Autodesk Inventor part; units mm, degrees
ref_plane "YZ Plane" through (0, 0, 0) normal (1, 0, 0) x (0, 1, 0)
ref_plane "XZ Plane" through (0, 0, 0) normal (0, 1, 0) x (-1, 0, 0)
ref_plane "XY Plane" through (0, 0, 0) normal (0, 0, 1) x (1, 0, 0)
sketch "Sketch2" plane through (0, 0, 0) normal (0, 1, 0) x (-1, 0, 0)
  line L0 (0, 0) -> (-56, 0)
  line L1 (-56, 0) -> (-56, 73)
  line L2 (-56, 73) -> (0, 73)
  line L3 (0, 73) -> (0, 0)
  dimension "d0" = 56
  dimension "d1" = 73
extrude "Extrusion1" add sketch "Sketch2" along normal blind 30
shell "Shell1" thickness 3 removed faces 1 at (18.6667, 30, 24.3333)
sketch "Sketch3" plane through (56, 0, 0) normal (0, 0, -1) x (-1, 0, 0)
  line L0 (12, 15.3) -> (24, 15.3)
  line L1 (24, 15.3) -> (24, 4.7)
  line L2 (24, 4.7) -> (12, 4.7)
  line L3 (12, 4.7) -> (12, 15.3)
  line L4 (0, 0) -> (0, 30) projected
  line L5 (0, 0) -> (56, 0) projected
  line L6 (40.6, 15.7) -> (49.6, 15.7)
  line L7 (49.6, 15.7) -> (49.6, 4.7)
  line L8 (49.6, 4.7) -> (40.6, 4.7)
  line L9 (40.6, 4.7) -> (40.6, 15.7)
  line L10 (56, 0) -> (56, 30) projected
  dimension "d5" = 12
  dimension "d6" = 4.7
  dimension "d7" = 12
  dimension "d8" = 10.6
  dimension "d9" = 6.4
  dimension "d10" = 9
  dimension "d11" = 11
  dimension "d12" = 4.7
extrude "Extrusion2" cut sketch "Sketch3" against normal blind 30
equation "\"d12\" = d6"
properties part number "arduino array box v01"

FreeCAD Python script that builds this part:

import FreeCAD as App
import Part
import Sketcher
from FreeCAD import Vector


def faces_at(feature, points):
    """Names of the faces that lie closest to the given points."""
    faces = feature.Shape.Faces
    near = lambda p: min(range(len(faces)), key=lambda i: faces[i].distToShape(Part.Vertex(*p))[0])
    return sorted({f"Face{near(p) + 1}" for p in points})

doc = App.newDocument("Part")
body = doc.addObject("PartDesign::Body", "Body")

# Sketch on XZ plane
sketch1 = body.newObject("Sketcher::SketchObject", "Sketch")
sketch1.AttachmentSupport = (doc.getObject("XZ_Plane"), [""])
sketch1.MapMode = "FlatFace"
sketch1.addGeometry([
    Part.LineSegment(Vector(56, 0, 0), Vector(0, 0, 0)),
    Part.LineSegment(Vector(0, 0, 0), Vector(0, 73, 0)),
    Part.LineSegment(Vector(0, 73, 0), Vector(56, 73, 0)),
    Part.LineSegment(Vector(56, 73, 0), Vector(56, 0, 0)),
], False)
sketch1.addConstraint([
    Sketcher.Constraint("Coincident", 0, 2, 1, 1),
    Sketcher.Constraint("Coincident", 1, 2, 2, 1),
    Sketcher.Constraint("Coincident", 2, 2, 3, 1),
    Sketcher.Constraint("Coincident", 3, 2, 0, 1),
    Sketcher.Constraint("Horizontal", 0),
    Sketcher.Constraint("Vertical", 1),
    Sketcher.Constraint("Horizontal", 2),
    Sketcher.Constraint("Vertical", 3),
    Sketcher.Constraint("Coincident", 0, 2, -1, 1),
    Sketcher.Constraint("DistanceX", 0, 2, 0, 1, 56.0),
    Sketcher.Constraint("DistanceY", 1, 1, 1, 2, 73.0),
])
pad1 = body.newObject("PartDesign::Pad", "Pad")
pad1.Profile = sketch1
pad1.Length = 30
pad1.Reversed = True
doc.recompute()

thickness = body.newObject("PartDesign::Thickness", "Thickness")
thickness.Base = (pad1, faces_at(pad1, [(18.667, 30, 24.333)]))
thickness.Value = 3
thickness.Reversed = True
thickness.Join = "Intersection"

# Sketch on XY plane
sketch2 = body.newObject("Sketcher::SketchObject", "Sketch001")
sketch2.AttachmentSupport = (doc.getObject("XY_Plane"), [""])
sketch2.MapMode = "FlatFace"
sketch2.addGeometry([
    Part.LineSegment(Vector(32, 15, 0), Vector(44, 15, 0)),  # 0
    Part.LineSegment(Vector(44, 15, 0), Vector(44, 5, 0)),  # 1
    Part.LineSegment(Vector(44, 5, 0), Vector(32, 5, 0)),  # 2
    Part.LineSegment(Vector(32, 5, 0), Vector(32, 15, 0)),  # 3
    Part.LineSegment(Vector(6, 16, 0), Vector(15, 16, 0)),  # 4
    Part.LineSegment(Vector(15, 16, 0), Vector(15, 5, 0)),  # 5
    Part.LineSegment(Vector(15, 5, 0), Vector(6, 5, 0)),  # 6
    Part.LineSegment(Vector(6, 5, 0), Vector(6, 16, 0)),  # 7
], False)
sketch2.addConstraint([
    Sketcher.Constraint("Coincident", 0, 2, 1, 1),
    Sketcher.Constraint("Coincident", 1, 2, 2, 1),
    Sketcher.Constraint("Coincident", 2, 2, 3, 1),
    Sketcher.Constraint("Coincident", 3, 2, 0, 1),
    Sketcher.Constraint("Coincident", 4, 2, 5, 1),
    Sketcher.Constraint("Coincident", 5, 2, 6, 1),
    Sketcher.Constraint("Coincident", 6, 2, 7, 1),
    Sketcher.Constraint("Coincident", 7, 2, 4, 1),
    Sketcher.Constraint("Horizontal", 0),
    Sketcher.Constraint("Vertical", 1),
    Sketcher.Constraint("Horizontal", 2),
    Sketcher.Constraint("Vertical", 3),
    Sketcher.Constraint("Horizontal", 4),
    Sketcher.Constraint("Vertical", 5),
    Sketcher.Constraint("Horizontal", 6),
    Sketcher.Constraint("Vertical", 7),
    Sketcher.Constraint("Horizontal", 2, 2, 5, 2),
    Sketcher.Constraint("DistanceX", 0, 1, 0, 2, 12.0),
    Sketcher.Constraint("DistanceX", 4, 1, 4, 2, 9.0),
    Sketcher.Constraint("DistanceY", 5, 2, 5, 1, 11.0),
    Sketcher.Constraint("DistanceY", 1, 2, 1, 1, 10.6),
    Sketcher.Constraint("DistanceY", -1, 1, 1, 2, 4.7),
    Sketcher.Constraint("DistanceX", -1, 1, 6, 2, 6.4),
    Sketcher.Constraint("DistanceX", -1, 1, 0, 2, 44.0),
])
pocket1 = body.newObject("PartDesign::Pocket", "Pocket")
pocket1.Profile = sketch2
pocket1.Length = 30
pocket1.Reversed = True

doc.recompute()
